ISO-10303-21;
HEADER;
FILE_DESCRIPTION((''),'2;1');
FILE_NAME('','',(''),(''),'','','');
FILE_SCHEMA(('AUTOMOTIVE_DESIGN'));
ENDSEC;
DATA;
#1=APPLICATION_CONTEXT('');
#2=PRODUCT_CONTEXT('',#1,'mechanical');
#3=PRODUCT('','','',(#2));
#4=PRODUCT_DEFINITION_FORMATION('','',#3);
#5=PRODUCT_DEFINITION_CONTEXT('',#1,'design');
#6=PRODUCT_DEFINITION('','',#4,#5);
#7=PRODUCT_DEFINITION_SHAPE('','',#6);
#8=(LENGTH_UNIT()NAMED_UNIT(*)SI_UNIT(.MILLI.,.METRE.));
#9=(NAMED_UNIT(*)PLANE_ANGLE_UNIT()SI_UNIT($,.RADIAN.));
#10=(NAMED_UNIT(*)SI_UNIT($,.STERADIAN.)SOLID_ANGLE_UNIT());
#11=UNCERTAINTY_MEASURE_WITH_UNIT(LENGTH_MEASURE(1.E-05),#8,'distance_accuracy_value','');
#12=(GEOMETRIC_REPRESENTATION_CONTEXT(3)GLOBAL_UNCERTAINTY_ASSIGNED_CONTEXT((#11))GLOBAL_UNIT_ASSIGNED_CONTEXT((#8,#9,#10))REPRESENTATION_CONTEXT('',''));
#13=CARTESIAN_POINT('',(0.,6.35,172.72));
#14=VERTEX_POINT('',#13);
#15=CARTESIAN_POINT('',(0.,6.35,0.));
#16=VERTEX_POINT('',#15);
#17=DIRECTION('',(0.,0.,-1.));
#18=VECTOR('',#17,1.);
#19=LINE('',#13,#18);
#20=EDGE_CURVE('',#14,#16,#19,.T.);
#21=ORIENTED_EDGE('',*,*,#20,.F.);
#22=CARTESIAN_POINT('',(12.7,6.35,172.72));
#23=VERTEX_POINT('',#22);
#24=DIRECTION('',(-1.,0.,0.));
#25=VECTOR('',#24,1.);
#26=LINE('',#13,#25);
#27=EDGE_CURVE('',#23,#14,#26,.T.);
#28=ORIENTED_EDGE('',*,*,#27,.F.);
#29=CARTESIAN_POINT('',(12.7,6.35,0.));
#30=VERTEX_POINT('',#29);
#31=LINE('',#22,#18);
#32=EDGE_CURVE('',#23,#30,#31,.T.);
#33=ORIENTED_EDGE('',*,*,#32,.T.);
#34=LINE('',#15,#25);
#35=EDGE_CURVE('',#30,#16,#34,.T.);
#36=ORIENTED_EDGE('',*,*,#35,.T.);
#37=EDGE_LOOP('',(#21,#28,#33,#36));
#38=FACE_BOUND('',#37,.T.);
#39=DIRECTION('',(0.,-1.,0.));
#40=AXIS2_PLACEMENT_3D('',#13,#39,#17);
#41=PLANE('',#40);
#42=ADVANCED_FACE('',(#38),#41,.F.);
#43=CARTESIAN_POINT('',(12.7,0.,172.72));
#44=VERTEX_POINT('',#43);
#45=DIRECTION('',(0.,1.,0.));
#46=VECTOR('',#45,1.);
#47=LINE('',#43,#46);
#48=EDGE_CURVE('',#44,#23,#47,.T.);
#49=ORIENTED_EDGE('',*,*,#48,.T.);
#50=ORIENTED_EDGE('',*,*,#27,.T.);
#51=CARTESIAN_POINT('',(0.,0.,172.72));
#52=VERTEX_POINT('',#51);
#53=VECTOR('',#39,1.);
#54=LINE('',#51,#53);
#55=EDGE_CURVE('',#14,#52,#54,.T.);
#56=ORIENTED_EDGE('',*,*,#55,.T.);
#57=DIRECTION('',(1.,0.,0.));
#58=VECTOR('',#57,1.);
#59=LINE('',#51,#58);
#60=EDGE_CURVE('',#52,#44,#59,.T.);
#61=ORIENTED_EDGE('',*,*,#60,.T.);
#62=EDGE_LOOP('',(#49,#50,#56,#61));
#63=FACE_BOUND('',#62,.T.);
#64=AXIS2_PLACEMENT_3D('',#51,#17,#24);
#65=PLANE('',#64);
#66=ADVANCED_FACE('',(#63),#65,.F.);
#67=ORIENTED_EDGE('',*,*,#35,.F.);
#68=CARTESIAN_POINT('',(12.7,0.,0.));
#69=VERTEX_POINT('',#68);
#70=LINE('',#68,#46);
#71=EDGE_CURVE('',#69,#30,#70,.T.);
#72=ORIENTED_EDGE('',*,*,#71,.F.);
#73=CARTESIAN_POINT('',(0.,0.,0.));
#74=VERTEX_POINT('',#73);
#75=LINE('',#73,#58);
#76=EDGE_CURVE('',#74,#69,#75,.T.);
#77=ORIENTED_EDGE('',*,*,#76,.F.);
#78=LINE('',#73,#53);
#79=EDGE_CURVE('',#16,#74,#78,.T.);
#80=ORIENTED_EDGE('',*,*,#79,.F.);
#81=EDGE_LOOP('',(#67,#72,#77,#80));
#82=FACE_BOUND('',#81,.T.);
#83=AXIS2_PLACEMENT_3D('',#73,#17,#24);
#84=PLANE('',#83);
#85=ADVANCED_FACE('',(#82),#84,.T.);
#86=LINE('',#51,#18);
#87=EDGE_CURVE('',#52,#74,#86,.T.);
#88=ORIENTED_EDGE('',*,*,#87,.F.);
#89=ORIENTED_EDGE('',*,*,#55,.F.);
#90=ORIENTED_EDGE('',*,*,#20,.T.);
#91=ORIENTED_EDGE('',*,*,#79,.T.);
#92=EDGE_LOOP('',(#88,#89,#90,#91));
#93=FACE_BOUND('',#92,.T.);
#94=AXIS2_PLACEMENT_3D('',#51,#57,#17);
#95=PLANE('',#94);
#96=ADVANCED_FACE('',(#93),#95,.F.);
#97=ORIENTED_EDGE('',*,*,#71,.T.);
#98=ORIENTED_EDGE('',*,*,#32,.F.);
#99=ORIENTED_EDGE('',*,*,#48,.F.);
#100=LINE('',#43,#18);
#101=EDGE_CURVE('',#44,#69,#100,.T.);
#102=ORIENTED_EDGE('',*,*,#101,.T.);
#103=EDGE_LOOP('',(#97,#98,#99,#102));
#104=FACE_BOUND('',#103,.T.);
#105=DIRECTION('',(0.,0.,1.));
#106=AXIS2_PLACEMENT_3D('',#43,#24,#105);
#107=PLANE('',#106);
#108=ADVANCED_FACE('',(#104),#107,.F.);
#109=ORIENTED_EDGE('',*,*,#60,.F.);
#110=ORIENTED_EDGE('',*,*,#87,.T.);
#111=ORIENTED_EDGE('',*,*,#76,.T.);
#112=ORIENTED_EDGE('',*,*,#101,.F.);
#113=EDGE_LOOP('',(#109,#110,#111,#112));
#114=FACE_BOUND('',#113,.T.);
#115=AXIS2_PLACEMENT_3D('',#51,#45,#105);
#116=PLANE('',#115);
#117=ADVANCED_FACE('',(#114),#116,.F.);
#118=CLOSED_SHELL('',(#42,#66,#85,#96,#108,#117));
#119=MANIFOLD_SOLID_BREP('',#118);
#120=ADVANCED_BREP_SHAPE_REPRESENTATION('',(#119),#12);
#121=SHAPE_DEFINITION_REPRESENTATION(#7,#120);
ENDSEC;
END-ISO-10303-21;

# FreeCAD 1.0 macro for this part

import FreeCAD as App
import Part
import Sketcher
Q = App.Units.Quantity

doc = App.newDocument("Part")
body = doc.addObject("PartDesign::Body", "Body")

sketch1 = body.newObject("Sketcher::SketchObject", "Sketch")
sketch1.AttachmentSupport = (doc.getObject("XY_Plane"), [""])
sketch1.MapMode = "FlatFace"
sketch1.addGeometry(Part.LineSegment(App.Vector(0, 6, 0), App.Vector(0, 0, 0)), False)
sketch1.addGeometry(Part.LineSegment(App.Vector(0, 0, 0), App.Vector(13, 0, 0)), False)
sketch1.addGeometry(Part.LineSegment(App.Vector(13, 0, 0), App.Vector(13, 6, 0)), False)
sketch1.addGeometry(Part.LineSegment(App.Vector(13, 6, 0), App.Vector(0, 6, 0)), False)
sketch1.addConstraint(Sketcher.Constraint("Coincident", 0, 2, 1, 1))
sketch1.addConstraint(Sketcher.Constraint("Coincident", 1, 2, 2, 1))
sketch1.addConstraint(Sketcher.Constraint("Coincident", 2, 2, 3, 1))
sketch1.addConstraint(Sketcher.Constraint("Coincident", 3, 2, 0, 1))
sketch1.addConstraint(Sketcher.Constraint("Vertical", 0))
sketch1.addConstraint(Sketcher.Constraint("Horizontal", 1))
sketch1.addConstraint(Sketcher.Constraint("Vertical", 2))
sketch1.addConstraint(Sketcher.Constraint("Horizontal", 3))
sketch1.addConstraint(Sketcher.Constraint("Coincident", 0, 2, -1, 1))
sketch1.addConstraint(Sketcher.Constraint("DistanceX", 1, 1, 1, 2, Q("0.5 in")))
sketch1.addConstraint(Sketcher.Constraint("DistanceY", 0, 2, 0, 1, Q("0.25 in")))
pad1 = body.newObject("PartDesign::Pad", "Pad")
pad1.Profile = sketch1
pad1.Length = Q("6.8 in")

doc.recompute()
